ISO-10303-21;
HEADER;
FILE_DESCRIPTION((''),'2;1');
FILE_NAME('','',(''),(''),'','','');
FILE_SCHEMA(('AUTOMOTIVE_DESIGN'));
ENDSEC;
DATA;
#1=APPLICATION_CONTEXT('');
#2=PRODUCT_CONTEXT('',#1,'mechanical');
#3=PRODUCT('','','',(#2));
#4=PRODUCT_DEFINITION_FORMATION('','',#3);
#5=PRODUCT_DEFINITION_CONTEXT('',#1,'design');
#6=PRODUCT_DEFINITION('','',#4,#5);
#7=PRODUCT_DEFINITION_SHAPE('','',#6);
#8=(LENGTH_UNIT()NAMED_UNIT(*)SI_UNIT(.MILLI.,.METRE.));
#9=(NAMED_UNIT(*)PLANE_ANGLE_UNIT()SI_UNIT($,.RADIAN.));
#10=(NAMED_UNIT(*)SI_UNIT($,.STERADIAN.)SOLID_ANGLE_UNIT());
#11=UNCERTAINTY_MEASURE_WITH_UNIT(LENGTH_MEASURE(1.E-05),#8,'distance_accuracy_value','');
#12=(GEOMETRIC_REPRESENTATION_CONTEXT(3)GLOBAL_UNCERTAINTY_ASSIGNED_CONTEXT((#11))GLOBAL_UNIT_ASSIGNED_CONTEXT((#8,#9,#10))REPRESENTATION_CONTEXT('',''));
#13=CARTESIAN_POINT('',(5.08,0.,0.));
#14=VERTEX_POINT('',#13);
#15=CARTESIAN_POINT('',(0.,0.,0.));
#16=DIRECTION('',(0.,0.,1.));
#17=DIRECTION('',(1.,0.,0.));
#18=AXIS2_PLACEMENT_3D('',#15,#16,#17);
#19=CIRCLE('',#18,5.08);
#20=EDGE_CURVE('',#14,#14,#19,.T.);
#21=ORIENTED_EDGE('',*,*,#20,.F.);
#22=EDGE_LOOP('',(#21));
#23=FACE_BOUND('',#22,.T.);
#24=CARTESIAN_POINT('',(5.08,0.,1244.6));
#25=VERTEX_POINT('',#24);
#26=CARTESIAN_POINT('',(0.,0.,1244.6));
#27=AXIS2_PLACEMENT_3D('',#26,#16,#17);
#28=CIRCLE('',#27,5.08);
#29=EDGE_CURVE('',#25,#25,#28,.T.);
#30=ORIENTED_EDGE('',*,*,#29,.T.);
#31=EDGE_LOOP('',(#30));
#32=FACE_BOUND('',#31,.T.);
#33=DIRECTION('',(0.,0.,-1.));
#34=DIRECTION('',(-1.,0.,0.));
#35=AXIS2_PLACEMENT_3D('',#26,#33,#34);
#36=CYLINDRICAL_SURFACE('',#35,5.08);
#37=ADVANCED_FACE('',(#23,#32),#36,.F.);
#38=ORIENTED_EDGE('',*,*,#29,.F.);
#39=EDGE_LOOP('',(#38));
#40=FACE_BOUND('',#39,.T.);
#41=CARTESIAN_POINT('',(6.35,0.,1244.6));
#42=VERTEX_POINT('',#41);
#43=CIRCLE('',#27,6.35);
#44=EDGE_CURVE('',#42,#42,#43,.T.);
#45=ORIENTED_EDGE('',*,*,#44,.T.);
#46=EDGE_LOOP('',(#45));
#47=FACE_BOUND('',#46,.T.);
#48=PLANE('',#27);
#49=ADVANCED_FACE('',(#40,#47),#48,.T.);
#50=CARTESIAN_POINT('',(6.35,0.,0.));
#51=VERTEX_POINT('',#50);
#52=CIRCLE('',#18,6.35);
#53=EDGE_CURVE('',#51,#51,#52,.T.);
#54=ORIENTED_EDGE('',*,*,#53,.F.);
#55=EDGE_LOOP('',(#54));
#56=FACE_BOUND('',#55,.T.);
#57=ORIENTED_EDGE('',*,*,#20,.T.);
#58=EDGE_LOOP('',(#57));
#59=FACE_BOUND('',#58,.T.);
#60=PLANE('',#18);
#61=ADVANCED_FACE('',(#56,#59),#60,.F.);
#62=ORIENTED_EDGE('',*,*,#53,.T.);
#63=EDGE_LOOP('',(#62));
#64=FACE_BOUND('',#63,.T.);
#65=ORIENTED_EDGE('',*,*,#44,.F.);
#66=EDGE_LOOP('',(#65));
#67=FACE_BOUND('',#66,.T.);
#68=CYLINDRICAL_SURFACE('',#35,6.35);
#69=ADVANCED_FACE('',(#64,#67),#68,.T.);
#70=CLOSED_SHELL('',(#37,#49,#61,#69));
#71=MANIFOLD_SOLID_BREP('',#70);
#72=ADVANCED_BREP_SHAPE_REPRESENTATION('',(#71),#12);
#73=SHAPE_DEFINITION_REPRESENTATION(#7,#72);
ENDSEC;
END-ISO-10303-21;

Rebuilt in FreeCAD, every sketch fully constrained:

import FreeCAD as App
import Part
import Sketcher
Q = App.Units.Quantity

doc = App.newDocument("Part")
body = doc.addObject("PartDesign::Body", "Body")

# Sketch on XY plane
sketch1 = body.newObject("Sketcher::SketchObject", "Sketch")
sketch1.AttachmentSupport = (doc.getObject("XY_Plane"), [""])
sketch1.MapMode = "FlatFace"
sketch1.addGeometry(Part.Circle(App.Vector(0, 0, 0), App.Vector(0, 0, 1), 6), False)
sketch1.addGeometry(Part.Circle(App.Vector(0, 0, 0), App.Vector(0, 0, 1), 5), False)
sketch1.addConstraint(Sketcher.Constraint("Coincident", 0, 3, -1, 1))
sketch1.addConstraint(Sketcher.Constraint("Coincident", 1, 3, -1, 1))
sketch1.addConstraint(Sketcher.Constraint("Diameter", 0, Q("0.5 in")))
sketch1.addConstraint(Sketcher.Constraint("Diameter", 1, Q("0.4 in")))
pad1 = body.newObject("PartDesign::Pad", "Pad")
pad1.Profile = sketch1
pad1.Length = Q("49 in")

doc.recompute()
